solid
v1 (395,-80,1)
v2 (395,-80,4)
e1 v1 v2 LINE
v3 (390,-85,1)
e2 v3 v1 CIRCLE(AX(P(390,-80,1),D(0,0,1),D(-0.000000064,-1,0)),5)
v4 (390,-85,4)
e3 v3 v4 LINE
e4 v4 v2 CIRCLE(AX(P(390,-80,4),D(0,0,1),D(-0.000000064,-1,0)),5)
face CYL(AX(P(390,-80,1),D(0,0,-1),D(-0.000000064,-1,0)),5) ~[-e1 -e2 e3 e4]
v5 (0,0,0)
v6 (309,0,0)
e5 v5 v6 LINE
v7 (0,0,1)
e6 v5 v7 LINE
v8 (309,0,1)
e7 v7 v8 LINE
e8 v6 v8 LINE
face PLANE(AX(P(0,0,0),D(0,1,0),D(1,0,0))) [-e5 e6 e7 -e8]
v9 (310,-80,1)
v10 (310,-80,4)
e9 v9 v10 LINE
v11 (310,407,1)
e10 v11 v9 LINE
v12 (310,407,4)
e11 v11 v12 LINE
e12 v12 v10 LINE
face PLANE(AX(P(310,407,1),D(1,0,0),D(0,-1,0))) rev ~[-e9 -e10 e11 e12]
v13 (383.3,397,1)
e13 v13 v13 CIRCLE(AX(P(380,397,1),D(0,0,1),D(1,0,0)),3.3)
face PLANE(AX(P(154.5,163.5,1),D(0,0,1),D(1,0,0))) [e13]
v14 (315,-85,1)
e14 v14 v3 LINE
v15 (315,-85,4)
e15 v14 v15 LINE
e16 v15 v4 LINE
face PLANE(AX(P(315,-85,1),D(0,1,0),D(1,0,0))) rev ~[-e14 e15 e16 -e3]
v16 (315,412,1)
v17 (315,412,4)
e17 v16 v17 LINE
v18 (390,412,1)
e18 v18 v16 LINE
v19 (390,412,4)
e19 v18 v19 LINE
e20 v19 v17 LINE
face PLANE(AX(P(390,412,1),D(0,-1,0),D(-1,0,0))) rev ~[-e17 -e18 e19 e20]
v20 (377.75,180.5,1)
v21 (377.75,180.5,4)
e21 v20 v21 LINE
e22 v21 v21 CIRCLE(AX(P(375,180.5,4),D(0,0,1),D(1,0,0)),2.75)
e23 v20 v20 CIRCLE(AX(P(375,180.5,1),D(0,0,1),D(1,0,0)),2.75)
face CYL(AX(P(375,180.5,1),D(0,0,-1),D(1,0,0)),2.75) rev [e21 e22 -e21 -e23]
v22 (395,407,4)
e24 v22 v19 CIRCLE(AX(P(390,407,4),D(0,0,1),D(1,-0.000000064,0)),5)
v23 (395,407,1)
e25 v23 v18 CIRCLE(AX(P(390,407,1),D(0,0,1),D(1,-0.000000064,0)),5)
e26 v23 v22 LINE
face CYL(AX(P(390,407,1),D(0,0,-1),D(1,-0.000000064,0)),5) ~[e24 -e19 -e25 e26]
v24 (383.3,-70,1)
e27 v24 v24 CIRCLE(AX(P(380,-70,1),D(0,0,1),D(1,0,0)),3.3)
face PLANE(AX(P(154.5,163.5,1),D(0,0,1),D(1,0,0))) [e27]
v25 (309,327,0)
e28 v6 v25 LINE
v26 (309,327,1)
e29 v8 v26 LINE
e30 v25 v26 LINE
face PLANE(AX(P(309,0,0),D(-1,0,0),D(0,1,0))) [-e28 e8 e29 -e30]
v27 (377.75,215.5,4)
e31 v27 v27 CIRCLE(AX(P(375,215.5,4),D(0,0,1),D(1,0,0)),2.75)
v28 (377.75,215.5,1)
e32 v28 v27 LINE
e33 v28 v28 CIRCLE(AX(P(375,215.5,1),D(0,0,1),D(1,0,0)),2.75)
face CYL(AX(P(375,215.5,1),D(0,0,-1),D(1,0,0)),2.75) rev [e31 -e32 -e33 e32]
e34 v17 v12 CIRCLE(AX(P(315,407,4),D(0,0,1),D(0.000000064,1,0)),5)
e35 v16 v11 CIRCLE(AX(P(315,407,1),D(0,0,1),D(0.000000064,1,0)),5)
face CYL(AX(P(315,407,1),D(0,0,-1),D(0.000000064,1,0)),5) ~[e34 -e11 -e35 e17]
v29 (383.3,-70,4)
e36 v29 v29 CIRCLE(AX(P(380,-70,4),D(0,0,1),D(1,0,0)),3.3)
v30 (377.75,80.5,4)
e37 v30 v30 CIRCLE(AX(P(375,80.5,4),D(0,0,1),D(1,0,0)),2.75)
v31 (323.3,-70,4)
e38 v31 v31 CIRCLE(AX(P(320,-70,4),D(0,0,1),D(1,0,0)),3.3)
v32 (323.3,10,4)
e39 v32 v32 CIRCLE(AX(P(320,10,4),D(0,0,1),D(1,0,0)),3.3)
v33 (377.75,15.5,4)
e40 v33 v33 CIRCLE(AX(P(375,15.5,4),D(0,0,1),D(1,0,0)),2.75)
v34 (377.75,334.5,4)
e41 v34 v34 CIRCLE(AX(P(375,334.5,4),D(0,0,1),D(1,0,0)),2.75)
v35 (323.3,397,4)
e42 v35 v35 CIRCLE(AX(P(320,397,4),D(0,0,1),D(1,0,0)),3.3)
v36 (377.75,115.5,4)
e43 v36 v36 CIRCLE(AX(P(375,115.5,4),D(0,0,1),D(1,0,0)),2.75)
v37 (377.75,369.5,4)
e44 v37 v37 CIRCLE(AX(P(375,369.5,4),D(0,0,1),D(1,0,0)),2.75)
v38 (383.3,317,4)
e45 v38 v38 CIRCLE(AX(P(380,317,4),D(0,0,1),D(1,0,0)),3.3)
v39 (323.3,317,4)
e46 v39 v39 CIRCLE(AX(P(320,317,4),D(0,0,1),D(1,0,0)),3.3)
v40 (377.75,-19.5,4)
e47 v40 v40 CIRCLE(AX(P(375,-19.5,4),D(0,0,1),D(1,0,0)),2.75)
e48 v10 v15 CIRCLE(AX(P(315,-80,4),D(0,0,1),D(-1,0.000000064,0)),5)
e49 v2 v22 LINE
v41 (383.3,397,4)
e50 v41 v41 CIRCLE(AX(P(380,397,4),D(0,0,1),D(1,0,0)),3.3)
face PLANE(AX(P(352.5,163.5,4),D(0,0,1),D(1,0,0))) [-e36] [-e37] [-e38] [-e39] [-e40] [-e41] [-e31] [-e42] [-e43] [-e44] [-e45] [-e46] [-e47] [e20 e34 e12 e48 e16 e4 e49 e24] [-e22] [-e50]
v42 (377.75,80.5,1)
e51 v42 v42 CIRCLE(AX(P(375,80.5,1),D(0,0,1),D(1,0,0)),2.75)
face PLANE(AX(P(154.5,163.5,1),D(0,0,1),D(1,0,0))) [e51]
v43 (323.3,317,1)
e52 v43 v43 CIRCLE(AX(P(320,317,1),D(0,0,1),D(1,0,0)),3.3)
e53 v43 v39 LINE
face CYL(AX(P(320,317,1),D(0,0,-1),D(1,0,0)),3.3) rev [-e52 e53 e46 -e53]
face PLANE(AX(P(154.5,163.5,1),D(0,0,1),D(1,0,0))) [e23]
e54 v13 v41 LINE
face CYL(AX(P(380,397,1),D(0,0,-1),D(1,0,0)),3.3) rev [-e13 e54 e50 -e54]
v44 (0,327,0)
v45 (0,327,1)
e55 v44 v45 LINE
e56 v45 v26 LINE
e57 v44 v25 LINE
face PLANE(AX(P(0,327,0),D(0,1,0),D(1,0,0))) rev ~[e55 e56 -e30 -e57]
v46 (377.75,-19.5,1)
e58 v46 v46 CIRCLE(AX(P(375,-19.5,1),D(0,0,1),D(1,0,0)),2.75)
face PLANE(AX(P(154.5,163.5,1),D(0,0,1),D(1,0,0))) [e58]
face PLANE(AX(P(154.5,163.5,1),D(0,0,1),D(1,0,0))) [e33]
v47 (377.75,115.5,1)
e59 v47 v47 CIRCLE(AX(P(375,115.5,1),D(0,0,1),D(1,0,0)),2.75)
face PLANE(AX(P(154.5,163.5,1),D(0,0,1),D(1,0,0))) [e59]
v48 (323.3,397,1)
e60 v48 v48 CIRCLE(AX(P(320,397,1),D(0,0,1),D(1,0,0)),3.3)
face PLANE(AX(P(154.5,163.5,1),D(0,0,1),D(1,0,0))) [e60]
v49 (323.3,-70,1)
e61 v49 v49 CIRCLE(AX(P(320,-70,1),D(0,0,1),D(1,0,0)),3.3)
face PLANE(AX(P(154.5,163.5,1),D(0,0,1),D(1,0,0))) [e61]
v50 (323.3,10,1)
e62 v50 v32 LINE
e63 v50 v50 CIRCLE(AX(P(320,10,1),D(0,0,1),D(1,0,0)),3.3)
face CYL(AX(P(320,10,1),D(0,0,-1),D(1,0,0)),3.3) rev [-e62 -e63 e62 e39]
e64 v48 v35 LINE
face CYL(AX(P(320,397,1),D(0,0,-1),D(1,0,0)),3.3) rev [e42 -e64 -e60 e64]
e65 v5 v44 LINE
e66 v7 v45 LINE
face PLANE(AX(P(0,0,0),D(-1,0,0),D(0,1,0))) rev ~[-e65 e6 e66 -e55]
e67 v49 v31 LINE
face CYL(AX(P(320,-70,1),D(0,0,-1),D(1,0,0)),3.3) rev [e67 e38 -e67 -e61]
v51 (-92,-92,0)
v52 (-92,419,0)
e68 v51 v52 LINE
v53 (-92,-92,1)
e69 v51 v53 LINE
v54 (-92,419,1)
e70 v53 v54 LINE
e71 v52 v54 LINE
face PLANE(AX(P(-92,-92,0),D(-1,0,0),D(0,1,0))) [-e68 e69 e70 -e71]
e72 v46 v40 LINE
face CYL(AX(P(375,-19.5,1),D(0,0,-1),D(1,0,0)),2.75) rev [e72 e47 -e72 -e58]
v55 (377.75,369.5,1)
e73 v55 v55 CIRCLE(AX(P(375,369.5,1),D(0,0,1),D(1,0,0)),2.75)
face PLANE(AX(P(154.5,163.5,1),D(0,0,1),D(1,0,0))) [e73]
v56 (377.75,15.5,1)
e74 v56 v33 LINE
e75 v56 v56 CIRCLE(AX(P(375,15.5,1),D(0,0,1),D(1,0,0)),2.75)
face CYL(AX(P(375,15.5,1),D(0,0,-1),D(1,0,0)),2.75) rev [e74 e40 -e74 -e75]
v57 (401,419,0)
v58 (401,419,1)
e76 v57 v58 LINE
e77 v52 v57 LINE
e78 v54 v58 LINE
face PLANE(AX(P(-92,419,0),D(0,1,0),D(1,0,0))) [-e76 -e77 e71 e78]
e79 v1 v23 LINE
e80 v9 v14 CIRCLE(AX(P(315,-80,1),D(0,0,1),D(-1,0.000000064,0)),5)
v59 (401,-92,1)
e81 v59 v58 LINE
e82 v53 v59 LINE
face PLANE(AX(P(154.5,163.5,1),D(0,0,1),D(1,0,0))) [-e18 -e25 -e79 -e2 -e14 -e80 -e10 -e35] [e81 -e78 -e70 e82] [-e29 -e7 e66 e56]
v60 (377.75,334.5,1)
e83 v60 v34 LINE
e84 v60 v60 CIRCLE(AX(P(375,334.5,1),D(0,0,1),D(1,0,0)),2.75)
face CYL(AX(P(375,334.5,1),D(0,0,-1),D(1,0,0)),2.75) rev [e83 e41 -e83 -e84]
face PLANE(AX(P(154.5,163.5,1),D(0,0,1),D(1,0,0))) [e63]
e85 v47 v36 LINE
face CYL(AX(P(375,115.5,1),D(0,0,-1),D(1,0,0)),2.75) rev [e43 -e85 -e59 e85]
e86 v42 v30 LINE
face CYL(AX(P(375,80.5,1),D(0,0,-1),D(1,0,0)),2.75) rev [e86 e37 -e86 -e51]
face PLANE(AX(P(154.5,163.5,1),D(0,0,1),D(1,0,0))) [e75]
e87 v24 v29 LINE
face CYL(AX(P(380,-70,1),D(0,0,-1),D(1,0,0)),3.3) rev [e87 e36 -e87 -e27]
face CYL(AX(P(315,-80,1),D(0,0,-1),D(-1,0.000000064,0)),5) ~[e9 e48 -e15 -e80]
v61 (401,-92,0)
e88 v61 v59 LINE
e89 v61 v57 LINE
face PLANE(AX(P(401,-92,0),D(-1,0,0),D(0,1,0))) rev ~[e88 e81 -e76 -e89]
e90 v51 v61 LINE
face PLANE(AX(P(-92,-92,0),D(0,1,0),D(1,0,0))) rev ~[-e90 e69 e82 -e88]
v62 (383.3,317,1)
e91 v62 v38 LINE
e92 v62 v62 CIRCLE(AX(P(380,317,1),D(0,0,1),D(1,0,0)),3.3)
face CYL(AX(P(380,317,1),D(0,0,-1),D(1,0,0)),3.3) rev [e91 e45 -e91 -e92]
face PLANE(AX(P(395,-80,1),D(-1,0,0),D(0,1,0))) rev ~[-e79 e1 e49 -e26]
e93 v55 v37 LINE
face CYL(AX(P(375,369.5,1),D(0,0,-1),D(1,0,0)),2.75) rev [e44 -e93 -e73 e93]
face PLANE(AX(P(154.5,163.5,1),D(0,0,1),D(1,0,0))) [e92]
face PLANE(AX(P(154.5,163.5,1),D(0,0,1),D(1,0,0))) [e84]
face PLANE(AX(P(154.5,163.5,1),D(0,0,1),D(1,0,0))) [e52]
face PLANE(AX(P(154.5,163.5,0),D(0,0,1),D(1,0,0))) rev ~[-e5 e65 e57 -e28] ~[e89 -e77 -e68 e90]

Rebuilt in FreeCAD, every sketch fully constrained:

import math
import FreeCAD as App
import Part
import Sketcher

V = App.Vector
Q = App.Units.Quantity


def add_polygon(sketch, points):
    """Adds a closed chain of lines whose ends are joined by coincident constraints."""
    first, n = sketch.GeometryCount, len(points)
    for a, b in zip(points, points[1:] + points[:1]):
        sketch.addGeometry(Part.LineSegment(App.Vector(*a, 0), App.Vector(*b, 0)), False)
    for i in range(n):
        sketch.addConstraint(Sketcher.Constraint("Coincident", first + i, 2, first + (i + 1) % n, 1))

doc = App.newDocument("Part")
body = doc.addObject("PartDesign::Body", "Body")

sketch1 = doc.addObject("Sketcher::SketchObject", "Sketch")
body.addObject(sketch1)
sketch1.AttachmentSupport = (doc.XY_Plane, [""])
sketch1.MapMode = "FlatFace"
add_polygon(sketch1, [(-92, 419), (-92, -92), (401, -92), (401, 419)])
add_polygon(sketch1, [(309, 0), (0, 0), (0, 327), (309, 327)])
sketch1.addConstraint([
    Sketcher.Constraint("Vertical", 0),
    Sketcher.Constraint("Horizontal", 1),
    Sketcher.Constraint("Vertical", 2),
    Sketcher.Constraint("Horizontal", 3),
    Sketcher.Constraint("Horizontal", 4),
    Sketcher.Constraint("Vertical", 5),
    Sketcher.Constraint("Horizontal", 6),
    Sketcher.Constraint("Vertical", 7),
    Sketcher.Constraint("Coincident", 4, 2, -1, 1),
    Sketcher.Constraint("DistanceX", 1, 1, 1, 2, Q("493 mm")),
    Sketcher.Constraint("DistanceX", 4, 2, 4, 1, Q("309 mm")),
    Sketcher.Constraint("DistanceY", 0, 2, 0, 1, Q("511 mm")),
    Sketcher.Constraint("DistanceY", 5, 1, 5, 2, Q("327 mm")),
    Sketcher.Constraint("DistanceX", 0, 2, -1, 1, Q("92 mm")),
    Sketcher.Constraint("DistanceY", 0, 2, -1, 1, Q("92 mm")),
])
pad1 = doc.addObject("PartDesign::Pad", "Pad")
body.addObject(pad1)
pad1.Profile = sketch1
pad1.Length = 1

sketch2 = doc.addObject("Sketcher::SketchObject", "Sketch001")
body.addObject(sketch2)
sketch2.AttachmentSupport = (doc.XY_Plane, [""])
sketch2.MapMode = "FlatFace"
sketch2.AttachmentOffset = App.Placement(V(0, 0, 1), App.Rotation())
sketch2.addGeometry([
    Part.LineSegment(V(390, 412, 0), V(315, 412, 0)),
    Part.ArcOfCircle(Part.Circle(V(315, 407, 0), V(0, 0, 1), 5), math.radians(90), math.radians(180)),
    Part.LineSegment(V(310, 407, 0), V(310, -80, 0)),
    Part.ArcOfCircle(Part.Circle(V(315, -80, 0), V(0, 0, 1), 5), math.radians(180), math.radians(270)),
    Part.LineSegment(V(315, -85, 0), V(390, -85, 0)),
    Part.ArcOfCircle(Part.Circle(V(390, -80, 0), V(0, 0, 1), 5), math.radians(-90), math.radians(0)),
    Part.LineSegment(V(395, -80, 0), V(395, 407, 0)),
    Part.ArcOfCircle(Part.Circle(V(390, 407, 0), V(0, 0, 1), 5), math.radians(0), math.radians(90)),
    Part.Circle(V(320, -70, 0), V(0, 0, 1), 3.3),
    Part.Circle(V(320, 10, 0), V(0, 0, 1), 3.3),
    Part.Circle(V(380, -70, 0), V(0, 0, 1), 3.3),
    Part.Circle(V(375, -19.5, 0), V(0, 0, 1), 2.8),
    Part.Circle(V(375, 15.5, 0), V(0, 0, 1), 2.8),
    Part.Circle(V(375, 80.5, 0), V(0, 0, 1), 2.8),
    Part.Circle(V(375, 115.5, 0), V(0, 0, 1), 2.8),
    Part.Circle(V(320, 317, 0), V(0, 0, 1), 3.3),
    Part.Circle(V(320, 397, 0), V(0, 0, 1), 3.3),
    Part.Circle(V(375, 180.5, 0), V(0, 0, 1), 2.8),
    Part.Circle(V(375, 215.5, 0), V(0, 0, 1), 2.8),
    Part.Circle(V(375, 334.5, 0), V(0, 0, 1), 2.8),
    Part.Circle(V(380, 317, 0), V(0, 0, 1), 3.3),
    Part.Circle(V(375, 369.5, 0), V(0, 0, 1), 2.8),
    Part.Circle(V(380, 397, 0), V(0, 0, 1), 3.3),
], False)
sketch2.addConstraint([
    Sketcher.Constraint("Tangent", 0, 2, 1, 1),
    Sketcher.Constraint("Tangent", 1, 2, 2, 1),
    Sketcher.Constraint("Tangent", 2, 2, 3, 1),
    Sketcher.Constraint("Tangent", 3, 2, 4, 1),
    Sketcher.Constraint("Tangent", 4, 2, 5, 1),
    Sketcher.Constraint("Tangent", 5, 2, 6, 1),
    Sketcher.Constraint("Tangent", 6, 2, 7, 1),
    Sketcher.Constraint("Tangent", 7, 2, 0, 1),
    Sketcher.Constraint("Horizontal", 0),
    Sketcher.Constraint("Vertical", 2),
    Sketcher.Constraint("Horizontal", 4),
    Sketcher.Constraint("Vertical", 6),
    Sketcher.Constraint("Equal", 1, 3),
    Sketcher.Constraint("Equal", 3, 5),
    Sketcher.Constraint("Equal", 5, 7),
    Sketcher.Constraint("Equal", 8, 9),
    Sketcher.Constraint("Equal", 9, 10),
    Sketcher.Constraint("Equal", 11, 12),
    Sketcher.Constraint("Equal", 12, 13),
    Sketcher.Constraint("Equal", 13, 14),
    Sketcher.Constraint("Equal", 10, 15),
    Sketcher.Constraint("Equal", 15, 16),
    Sketcher.Constraint("Equal", 14, 17),
    Sketcher.Constraint("Equal", 17, 18),
    Sketcher.Constraint("Equal", 18, 19),
    Sketcher.Constraint("Equal", 16, 20),
    Sketcher.Constraint("Equal", 19, 21),
    Sketcher.Constraint("Equal", 20, 22),
    Sketcher.Constraint("Horizontal", 8, 3, 10, 3),
    Sketcher.Constraint("Horizontal", 15, 3, 20, 3),
    Sketcher.Constraint("Horizontal", 16, 3, 22, 3),
    Sketcher.Constraint("Vertical", 8, 3, 9, 3),
    Sketcher.Constraint("Vertical", 11, 3, 12, 3),
    Sketcher.Constraint("Vertical", 12, 3, 13, 3),
    Sketcher.Constraint("Vertical", 13, 3, 14, 3),
    Sketcher.Constraint("Vertical", 9, 3, 15, 3),
    Sketcher.Constraint("Vertical", 15, 3, 16, 3),
    Sketcher.Constraint("Vertical", 14, 3, 17, 3),
    Sketcher.Constraint("Vertical", 17, 3, 18, 3),
    Sketcher.Constraint("Vertical", 18, 3, 19, 3),
    Sketcher.Constraint("Vertical", 10, 3, 20, 3),
    Sketcher.Constraint("Vertical", 19, 3, 21, 3),
    Sketcher.Constraint("Vertical", 20, 3, 22, 3),
    Sketcher.Constraint("Radius", 1, Q("5 mm")),
    Sketcher.Constraint("Diameter", 8, Q("6.6 mm")),
    Sketcher.Constraint("Diameter", 11, Q("5.5 mm")),
    Sketcher.Constraint("DistanceX", 0, 2, 0, 1, Q("75 mm")),
    Sketcher.Constraint("DistanceY", 2, 2, 2, 1, Q("487 mm")),
    Sketcher.Constraint("DistanceX", -1, 1, 1, 3, Q("315 mm")),
    Sketcher.Constraint("DistanceY", -1, 1, 1, 3, Q("407 mm")),
    Sketcher.Constraint("DistanceX", -1, 1, 8, 3, Q("320 mm")),
    Sketcher.Constraint("DistanceY", 8, 3, -1, 1, Q("70 mm")),
    Sketcher.Constraint("DistanceY", -1, 1, 9, 3, Q("10 mm")),
    Sketcher.Constraint("DistanceX", -1, 1, 10, 3, Q("380 mm")),
    Sketcher.Constraint("DistanceX", -1, 1, 11, 3, Q("375 mm")),
    Sketcher.Constraint("DistanceY", -1, 1, 15, 3, Q("317 mm")),
    Sketcher.Constraint("DistanceY", -1, 1, 16, 3, Q("397 mm")),
    Sketcher.Constraint("DistanceY", 11, 3, 12, 3, Q("35 mm")),
    Sketcher.Constraint("DistanceY", 12, 3, 13, 3, Q("65 mm")),
    Sketcher.Constraint("DistanceY", 13, 3, 14, 3, Q("35 mm")),
    Sketcher.Constraint("DistanceY", 14, 3, 17, 3, Q("65 mm")),
    Sketcher.Constraint("DistanceY", 17, 3, 18, 3, Q("35 mm")),
    Sketcher.Constraint("DistanceY", 18, 3, 19, 3, Q("119 mm")),
    Sketcher.Constraint("DistanceY", 19, 3, 21, 3, Q("35 mm")),
    Sketcher.Constraint("DistanceY", 11, 3, -1, 1, Q("19.5 mm")),
])
pad2 = doc.addObject("PartDesign::Pad", "Pad001")
body.addObject(pad2)
pad2.Profile = sketch2
pad2.Length = 3

doc.recompute()
